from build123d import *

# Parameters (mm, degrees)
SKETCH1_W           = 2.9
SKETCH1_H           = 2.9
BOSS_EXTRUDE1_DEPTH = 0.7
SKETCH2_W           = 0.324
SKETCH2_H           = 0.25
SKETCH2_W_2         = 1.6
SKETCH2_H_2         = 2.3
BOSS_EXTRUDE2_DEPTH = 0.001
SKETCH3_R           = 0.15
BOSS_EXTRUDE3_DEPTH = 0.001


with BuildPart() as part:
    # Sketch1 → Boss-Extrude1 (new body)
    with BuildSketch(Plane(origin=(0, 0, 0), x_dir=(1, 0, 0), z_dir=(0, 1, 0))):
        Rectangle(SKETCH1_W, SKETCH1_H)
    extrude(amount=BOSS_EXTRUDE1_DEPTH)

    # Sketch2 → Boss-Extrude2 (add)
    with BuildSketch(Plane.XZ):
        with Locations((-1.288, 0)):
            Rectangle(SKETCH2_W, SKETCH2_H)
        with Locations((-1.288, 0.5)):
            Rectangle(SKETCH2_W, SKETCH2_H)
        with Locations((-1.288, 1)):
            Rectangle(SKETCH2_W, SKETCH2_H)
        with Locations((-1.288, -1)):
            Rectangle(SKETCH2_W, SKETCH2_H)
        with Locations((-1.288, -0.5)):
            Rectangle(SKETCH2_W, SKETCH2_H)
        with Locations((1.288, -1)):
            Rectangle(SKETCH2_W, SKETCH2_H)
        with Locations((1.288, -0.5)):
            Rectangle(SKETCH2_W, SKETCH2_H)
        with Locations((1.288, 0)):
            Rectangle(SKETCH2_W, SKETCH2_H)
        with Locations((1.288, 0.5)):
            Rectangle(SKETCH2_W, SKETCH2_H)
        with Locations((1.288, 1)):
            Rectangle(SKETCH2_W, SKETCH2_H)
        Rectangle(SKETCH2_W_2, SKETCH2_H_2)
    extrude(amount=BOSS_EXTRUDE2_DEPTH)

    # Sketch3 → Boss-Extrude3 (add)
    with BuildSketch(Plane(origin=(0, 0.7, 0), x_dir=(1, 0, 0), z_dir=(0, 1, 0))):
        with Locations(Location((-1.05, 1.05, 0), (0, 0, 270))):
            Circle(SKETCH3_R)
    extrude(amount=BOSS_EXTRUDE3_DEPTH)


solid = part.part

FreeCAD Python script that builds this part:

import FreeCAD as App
import Part
import Sketcher
from FreeCAD import Vector

doc = App.newDocument("Part")
body = doc.addObject("PartDesign::Body", "Body")

# Sketch on XZ plane
sketch1 = doc.addObject("Sketcher::SketchObject", "Sketch")
body.addObject(sketch1)
sketch1.AttachmentSupport = (doc.XZ_Plane, [""])
sketch1.MapMode = "FlatFace"
sketch1.addGeometry(Part.LineSegment(Vector(-1.45, -1.45, 0), Vector(-1.45, 1.45, 0)), False)
sketch1.addGeometry(Part.LineSegment(Vector(-1.45, 1.45, 0), Vector(1.45, 1.45, 0)), False)
sketch1.addGeometry(Part.LineSegment(Vector(1.45, 1.45, 0), Vector(1.45, -1.45, 0)), False)
sketch1.addGeometry(Part.LineSegment(Vector(1.45, -1.45, 0), Vector(-1.45, -1.45, 0)), False)
sketch1.addConstraint(Sketcher.Constraint("Coincident", 0, 2, 1, 1))
sketch1.addConstraint(Sketcher.Constraint("Coincident", 1, 2, 2, 1))
sketch1.addConstraint(Sketcher.Constraint("Coincident", 2, 2, 3, 1))
sketch1.addConstraint(Sketcher.Constraint("Coincident", 3, 2, 0, 1))
sketch1.addConstraint(Sketcher.Constraint("Vertical", 0))
sketch1.addConstraint(Sketcher.Constraint("Horizontal", 1))
sketch1.addConstraint(Sketcher.Constraint("Vertical", 2))
sketch1.addConstraint(Sketcher.Constraint("Horizontal", 3))
sketch1.addConstraint(Sketcher.Constraint("Symmetric", 0, 2, 2, 2, -1, 1))
sketch1.addConstraint(Sketcher.Constraint("Equal", 3, 0))
sketch1.addConstraint(Sketcher.Constraint("DistanceX", 1, 1, 1, 2, 2.9))
pad1 = doc.addObject("PartDesign::Pad", "Pad")
body.addObject(pad1)
pad1.Profile = sketch1
pad1.Length = 0.7
pad1.Reversed = True

# Sketch on XZ plane
sketch2 = doc.addObject("Sketcher::SketchObject", "Sketch001")
body.addObject(sketch2)
sketch2.AttachmentSupport = (doc.XZ_Plane, [""])
sketch2.MapMode = "FlatFace"
sketch2.addGeometry(Part.LineSegment(Vector(-1.45, 0.125, 0), Vector(-1.45, -0.125, 0)), False)
sketch2.addGeometry(Part.LineSegment(Vector(-1.45, -0.125, 0), Vector(-1.126, -0.125, 0)), False)
sketch2.addGeometry(Part.LineSegment(Vector(-1.126, -0.125, 0), Vector(-1.126, 0.125, 0)), False)
sketch2.addGeometry(Part.LineSegment(Vector(-1.126, 0.125, 0), Vector(-1.45, 0.125, 0)), False)
sketch2.addGeometry(Part.LineSegment(Vector(-1.45, 0.625, 0), Vector(-1.45, 0.375, 0)), False)
sketch2.addGeometry(Part.LineSegment(Vector(-1.45, 0.375, 0), Vector(-1.126, 0.375, 0)), False)
sketch2.addGeometry(Part.LineSegment(Vector(-1.126, 0.375, 0), Vector(-1.126, 0.625, 0)), False)
sketch2.addGeometry(Part.LineSegment(Vector(-1.126, 0.625, 0), Vector(-1.45, 0.625, 0)), False)
sketch2.addGeometry(Part.LineSegment(Vector(-1.45, 1.125, 0), Vector(-1.45, 0.875, 0)), False)
sketch2.addGeometry(Part.LineSegment(Vector(-1.45, 0.875, 0), Vector(-1.126, 0.875, 0)), False)
sketch2.addGeometry(Part.LineSegment(Vector(-1.126, 0.875, 0), Vector(-1.126, 1.125, 0)), False)
sketch2.addGeometry(Part.LineSegment(Vector(-1.126, 1.125, 0), Vector(-1.45, 1.125, 0)), False)
sketch2.addGeometry(Part.LineSegment(Vector(-1.45, -0.875, 0), Vector(-1.45, -1.125, 0)), False)
sketch2.addGeometry(Part.LineSegment(Vector(-1.45, -1.125, 0), Vector(-1.126, -1.125, 0)), False)
sketch2.addGeometry(Part.LineSegment(Vector(-1.126, -1.125, 0), Vector(-1.126, -0.875, 0)), False)
sketch2.addGeometry(Part.LineSegment(Vector(-1.126, -0.875, 0), Vector(-1.45, -0.875, 0)), False)
sketch2.addGeometry(Part.LineSegment(Vector(-1.45, -0.375, 0), Vector(-1.45, -0.625, 0)), False)
sketch2.addGeometry(Part.LineSegment(Vector(-1.45, -0.625, 0), Vector(-1.126, -0.625, 0)), False)
sketch2.addGeometry(Part.LineSegment(Vector(-1.126, -0.625, 0), Vector(-1.126, -0.375, 0)), False)
sketch2.addGeometry(Part.LineSegment(Vector(-1.126, -0.375, 0), Vector(-1.45, -0.375, 0)), False)
sketch2.addGeometry(Part.LineSegment(Vector(1.126, -0.875, 0), Vector(1.126, -1.125, 0)), False)
sketch2.addGeometry(Part.LineSegment(Vector(1.126, -1.125, 0), Vector(1.45, -1.125, 0)), False)
sketch2.addGeometry(Part.LineSegment(Vector(1.45, -1.125, 0), Vector(1.45, -0.875, 0)), False)
sketch2.addGeometry(Part.LineSegment(Vector(1.45, -0.875, 0), Vector(1.126, -0.875, 0)), False)
sketch2.addGeometry(Part.LineSegment(Vector(1.126, -0.375, 0), Vector(1.126, -0.625, 0)), False)
sketch2.addGeometry(Part.LineSegment(Vector(1.126, -0.625, 0), Vector(1.45, -0.625, 0)), False)
sketch2.addGeometry(Part.LineSegment(Vector(1.45, -0.625, 0), Vector(1.45, -0.375, 0)), False)
sketch2.addGeometry(Part.LineSegment(Vector(1.45, -0.375, 0), Vector(1.126, -0.375, 0)), False)
sketch2.addGeometry(Part.LineSegment(Vector(1.126, 0.125, 0), Vector(1.126, -0.125, 0)), False)
sketch2.addGeometry(Part.LineSegment(Vector(1.126, -0.125, 0), Vector(1.45, -0.125, 0)), False)
sketch2.addGeometry(Part.LineSegment(Vector(1.45, -0.125, 0), Vector(1.45, 0.125, 0)), False)
sketch2.addGeometry(Part.LineSegment(Vector(1.45, 0.125, 0), Vector(1.126, 0.125, 0)), False)
sketch2.addGeometry(Part.LineSegment(Vector(1.126, 0.625, 0), Vector(1.126, 0.375, 0)), False)
sketch2.addGeometry(Part.LineSegment(Vector(1.126, 0.375, 0), Vector(1.45, 0.375, 0)), False)
sketch2.addGeometry(Part.LineSegment(Vector(1.45, 0.375, 0), Vector(1.45, 0.625, 0)), False)
sketch2.addGeometry(Part.LineSegment(Vector(1.45, 0.625, 0), Vector(1.126, 0.625, 0)), False)
sketch2.addGeometry(Part.LineSegment(Vector(1.126, 1.125, 0), Vector(1.126, 0.875, 0)), False)
sketch2.addGeometry(Part.LineSegment(Vector(1.126, 0.875, 0), Vector(1.45, 0.875, 0)), False)
sketch2.addGeometry(Part.LineSegment(Vector(1.45, 0.875, 0), Vector(1.45, 1.125, 0)), False)
sketch2.addGeometry(Part.LineSegment(Vector(1.45, 1.125, 0), Vector(1.126, 1.125, 0)), False)
sketch2.addGeometry(Part.LineSegment(Vector(-0.8, 1.15, 0), Vector(-0.8, -1.15, 0)), False)
sketch2.addGeometry(Part.LineSegment(Vector(-0.8, -1.15, 0), Vector(0.8, -1.15, 0)), False)
sketch2.addGeometry(Part.LineSegment(Vector(0.8, -1.15, 0), Vector(0.8, 1.15, 0)), False)
sketch2.addGeometry(Part.LineSegment(Vector(0.8, 1.15, 0), Vector(-0.8, 1.15, 0)), False)
sketch2.addConstraint(Sketcher.Constraint("Coincident", 0, 2, 1, 1))
sketch2.addConstraint(Sketcher.Constraint("Coincident", 1, 2, 2, 1))
sketch2.addConstraint(Sketcher.Constraint("Coincident", 2, 2, 3, 1))
sketch2.addConstraint(Sketcher.Constraint("Coincident", 3, 2, 0, 1))
sketch2.addConstraint(Sketcher.Constraint("Coincident", 4, 2, 5, 1))
sketch2.addConstraint(Sketcher.Constraint("Coincident", 5, 2, 6, 1))
sketch2.addConstraint(Sketcher.Constraint("Coincident", 6, 2, 7, 1))
sketch2.addConstraint(Sketcher.Constraint("Coincident", 7, 2, 4, 1))
sketch2.addConstraint(Sketcher.Constraint("Coincident", 8, 2, 9, 1))
sketch2.addConstraint(Sketcher.Constraint("Coincident", 9, 2, 10, 1))
sketch2.addConstraint(Sketcher.Constraint("Coincident", 10, 2, 11, 1))
sketch2.addConstraint(Sketcher.Constraint("Coincident", 11, 2, 8, 1))
sketch2.addConstraint(Sketcher.Constraint("Coincident", 12, 2, 13, 1))
sketch2.addConstraint(Sketcher.Constraint("Coincident", 13, 2, 14, 1))
sketch2.addConstraint(Sketcher.Constraint("Coincident", 14, 2, 15, 1))
sketch2.addConstraint(Sketcher.Constraint("Coincident", 15, 2, 12, 1))
sketch2.addConstraint(Sketcher.Constraint("Coincident", 16, 2, 17, 1))
sketch2.addConstraint(Sketcher.Constraint("Coincident", 17, 2, 18, 1))
sketch2.addConstraint(Sketcher.Constraint("Coincident", 18, 2, 19, 1))
sketch2.addConstraint(Sketcher.Constraint("Coincident", 19, 2, 16, 1))
sketch2.addConstraint(Sketcher.Constraint("Coincident", 20, 2, 21, 1))
sketch2.addConstraint(Sketcher.Constraint("Coincident", 21, 2, 22, 1))
sketch2.addConstraint(Sketcher.Constraint("Coincident", 22, 2, 23, 1))
sketch2.addConstraint(Sketcher.Constraint("Coincident", 23, 2, 20, 1))
sketch2.addConstraint(Sketcher.Constraint("Coincident", 24, 2, 25, 1))
sketch2.addConstraint(Sketcher.Constraint("Coincident", 25, 2, 26, 1))
sketch2.addConstraint(Sketcher.Constraint("Coincident", 26, 2, 27, 1))
sketch2.addConstraint(Sketcher.Constraint("Coincident", 27, 2, 24, 1))
sketch2.addConstraint(Sketcher.Constraint("Coincident", 28, 2, 29, 1))
sketch2.addConstraint(Sketcher.Constraint("Coincident", 29, 2, 30, 1))
sketch2.addConstraint(Sketcher.Constraint("Coincident", 30, 2, 31, 1))
sketch2.addConstraint(Sketcher.Constraint("Coincident", 31, 2, 28, 1))
sketch2.addConstraint(Sketcher.Constraint("Coincident", 32, 2, 33, 1))
sketch2.addConstraint(Sketcher.Constraint("Coincident", 33, 2, 34, 1))
sketch2.addConstraint(Sketcher.Constraint("Coincident", 34, 2, 35, 1))
sketch2.addConstraint(Sketcher.Constraint("Coincident", 35, 2, 32, 1))
sketch2.addConstraint(Sketcher.Constraint("Coincident", 36, 2, 37, 1))
sketch2.addConstraint(Sketcher.Constraint("Coincident", 37, 2, 38, 1))
sketch2.addConstraint(Sketcher.Constraint("Coincident", 38, 2, 39, 1))
sketch2.addConstraint(Sketcher.Constraint("Coincident", 39, 2, 36, 1))
sketch2.addConstraint(Sketcher.Constraint("Coincident", 40, 2, 41, 1))
sketch2.addConstraint(Sketcher.Constraint("Coincident", 41, 2, 42, 1))
sketch2.addConstraint(Sketcher.Constraint("Coincident", 42, 2, 43, 1))
sketch2.addConstraint(Sketcher.Constraint("Coincident", 43, 2, 40, 1))
sketch2.addConstraint(Sketcher.Constraint("Vertical", 0))
sketch2.addConstraint(Sketcher.Constraint("Horizontal", 1))
sketch2.addConstraint(Sketcher.Constraint("Vertical", 2))
sketch2.addConstraint(Sketcher.Constraint("Horizontal", 3))
sketch2.addConstraint(Sketcher.Constraint("Vertical", 4))
sketch2.addConstraint(Sketcher.Constraint("Horizontal", 5))
sketch2.addConstraint(Sketcher.Constraint("Vertical", 6))
sketch2.addConstraint(Sketcher.Constraint("Horizontal", 7))
sketch2.addConstraint(Sketcher.Constraint("Vertical", 8))
sketch2.addConstraint(Sketcher.Constraint("Horizontal", 9))
sketch2.addConstraint(Sketcher.Constraint("Vertical", 10))
sketch2.addConstraint(Sketcher.Constraint("Horizontal", 11))
sketch2.addConstraint(Sketcher.Constraint("Vertical", 12))
sketch2.addConstraint(Sketcher.Constraint("Horizontal", 13))
sketch2.addConstraint(Sketcher.Constraint("Vertical", 14))
sketch2.addConstraint(Sketcher.Constraint("Horizontal", 15))
sketch2.addConstraint(Sketcher.Constraint("Vertical", 16))
sketch2.addConstraint(Sketcher.Constraint("Horizontal", 17))
sketch2.addConstraint(Sketcher.Constraint("Vertical", 18))
sketch2.addConstraint(Sketcher.Constraint("Horizontal", 19))
sketch2.addConstraint(Sketcher.Constraint("Vertical", 20))
sketch2.addConstraint(Sketcher.Constraint("Horizontal", 21))
sketch2.addConstraint(Sketcher.Constraint("Vertical", 22))
sketch2.addConstraint(Sketcher.Constraint("Horizontal", 23))
sketch2.addConstraint(Sketcher.Constraint("Vertical", 24))
sketch2.addConstraint(Sketcher.Constraint("Horizontal", 25))
sketch2.addConstraint(Sketcher.Constraint("Vertical", 26))
sketch2.addConstraint(Sketcher.Constraint("Horizontal", 27))
sketch2.addConstraint(Sketcher.Constraint("Vertical", 28))
sketch2.addConstraint(Sketcher.Constraint("Horizontal", 29))
sketch2.addConstraint(Sketcher.Constraint("Vertical", 30))
sketch2.addConstraint(Sketcher.Constraint("Horizontal", 31))
sketch2.addConstraint(Sketcher.Constraint("Vertical", 32))
sketch2.addConstraint(Sketcher.Constraint("Horizontal", 33))
sketch2.addConstraint(Sketcher.Constraint("Vertical", 34))
sketch2.addConstraint(Sketcher.Constraint("Horizontal", 35))
sketch2.addConstraint(Sketcher.Constraint("Vertical", 36))
sketch2.addConstraint(Sketcher.Constraint("Horizontal", 37))
sketch2.addConstraint(Sketcher.Constraint("Vertical", 38))
sketch2.addConstraint(Sketcher.Constraint("Horizontal", 39))
sketch2.addConstraint(Sketcher.Constraint("Vertical", 40))
sketch2.addConstraint(Sketcher.Constraint("Horizontal", 41))
sketch2.addConstraint(Sketcher.Constraint("Vertical", 42))
sketch2.addConstraint(Sketcher.Constraint("Horizontal", 43))
sketch2.addConstraint(Sketcher.Constraint("Symmetric", 10, 2, 20, 2, -1, 1))
sketch2.addConstraint(Sketcher.Constraint("Symmetric", 8, 2, 22, 2, -1, 1))
sketch2.addConstraint(Sketcher.Constraint("Symmetric", 6, 2, 24, 2, -1, 1))
sketch2.addConstraint(Sketcher.Constraint("Symmetric", 4, 2, 26, 2, -1, 1))
sketch2.addConstraint(Sketcher.Constraint("Symmetric", 2, 2, 28, 2, -1, 1))
sketch2.addConstraint(Sketcher.Constraint("Symmetric", 0, 2, 30, 2, -1, 1))
sketch2.addConstraint(Sketcher.Constraint("Symmetric", 18, 2, 32, 2, -1, 1))
sketch2.addConstraint(Sketcher.Constraint("Symmetric", 16, 2, 34, 2, -1, 1))
sketch2.addConstraint(Sketcher.Constraint("Symmetric", 14, 2, 36, 2, -1, 1))
sketch2.addConstraint(Sketcher.Constraint("Symmetric", 12, 2, 38, 2, -1, 1))
sketch2.addConstraint(Sketcher.Constraint("Symmetric", 40, 2, 42, 2, -1, 1))
sketch2.addConstraint(Sketcher.Constraint("Symmetric", 13, 2, 20, 2, -2))
sketch2.addConstraint(Sketcher.Constraint("Symmetric", 15, 2, 22, 2, -2))
sketch2.addConstraint(Sketcher.Constraint("Symmetric", 17, 2, 24, 2, -2))
sketch2.addConstraint(Sketcher.Constraint("Symmetric", 19, 2, 26, 2, -2))
sketch2.addConstraint(Sketcher.Constraint("Horizontal", 1, 2, 28, 2))
sketch2.addConstraint(Sketcher.Constraint("Vertical", 3, 2, 4, 2))
sketch2.addConstraint(Sketcher.Constraint("Vertical", 2, 2, 5, 2))
sketch2.addConstraint(Sketcher.Constraint("Vertical", 7, 2, 8, 2))
sketch2.addConstraint(Sketcher.Constraint("Vertical", 6, 2, 9, 2))
sketch2.addConstraint(Sketcher.Constraint("Equal", 2, 4))
sketch2.addConstraint(Sketcher.Constraint("Equal", 6, 8))
sketch2.addConstraint(Sketcher.Constraint("DistanceX", 41, 1, 41, 2, 1.6))
sketch2.addConstraint(Sketcher.Constraint("DistanceY", 40, 2, 40, 1, 2.3))
sketch2.addConstraint(Sketcher.Constraint("DistanceY", 12, 2, 0, 2, 1.0))
sketch2.addConstraint(Sketcher.Constraint("DistanceY", 0, 2, 0, 1, 0.25))
sketch2.addConstraint(Sketcher.Constraint("DistanceY", 0, 2, 4, 2, 0.5))
sketch2.addConstraint(Sketcher.Constraint("DistanceX", 1, 1, 1, 2, 0.324))
sketch2.addConstraint(Sketcher.Constraint("DistanceX", 0, 2, -1, 1, 1.45))
pad2 = doc.addObject("PartDesign::Pad", "Pad001")
body.addObject(pad2)
pad2.Profile = sketch2
pad2.Length = 0.001

# Sketch on XZ plane
sketch3 = doc.addObject("Sketcher::SketchObject", "Sketch002")
body.addObject(sketch3)
sketch3.AttachmentSupport = (doc.XZ_Plane, [""])
sketch3.MapMode = "FlatFace"
sketch3.AttachmentOffset = App.Placement(Vector(0, 0, -0.7), App.Rotation())
sketch3.addGeometry(Part.Circle(Vector(-1.05, -1.05, 0), Vector(0, 0, 1), 0.15), False)
sketch3.addConstraint(Sketcher.Constraint("Diameter", 0, 0.3))
sketch3.addConstraint(Sketcher.Constraint("DistanceX", 0, 3, -1, 1, 1.05))
sketch3.addConstraint(Sketcher.Constraint("DistanceY", 0, 3, -1, 1, 1.05))
pad3 = doc.addObject("PartDesign::Pad", "Pad002")
body.addObject(pad3)
pad3.Profile = sketch3
pad3.Length = 0.001
pad3.Reversed = True

doc.recompute()
